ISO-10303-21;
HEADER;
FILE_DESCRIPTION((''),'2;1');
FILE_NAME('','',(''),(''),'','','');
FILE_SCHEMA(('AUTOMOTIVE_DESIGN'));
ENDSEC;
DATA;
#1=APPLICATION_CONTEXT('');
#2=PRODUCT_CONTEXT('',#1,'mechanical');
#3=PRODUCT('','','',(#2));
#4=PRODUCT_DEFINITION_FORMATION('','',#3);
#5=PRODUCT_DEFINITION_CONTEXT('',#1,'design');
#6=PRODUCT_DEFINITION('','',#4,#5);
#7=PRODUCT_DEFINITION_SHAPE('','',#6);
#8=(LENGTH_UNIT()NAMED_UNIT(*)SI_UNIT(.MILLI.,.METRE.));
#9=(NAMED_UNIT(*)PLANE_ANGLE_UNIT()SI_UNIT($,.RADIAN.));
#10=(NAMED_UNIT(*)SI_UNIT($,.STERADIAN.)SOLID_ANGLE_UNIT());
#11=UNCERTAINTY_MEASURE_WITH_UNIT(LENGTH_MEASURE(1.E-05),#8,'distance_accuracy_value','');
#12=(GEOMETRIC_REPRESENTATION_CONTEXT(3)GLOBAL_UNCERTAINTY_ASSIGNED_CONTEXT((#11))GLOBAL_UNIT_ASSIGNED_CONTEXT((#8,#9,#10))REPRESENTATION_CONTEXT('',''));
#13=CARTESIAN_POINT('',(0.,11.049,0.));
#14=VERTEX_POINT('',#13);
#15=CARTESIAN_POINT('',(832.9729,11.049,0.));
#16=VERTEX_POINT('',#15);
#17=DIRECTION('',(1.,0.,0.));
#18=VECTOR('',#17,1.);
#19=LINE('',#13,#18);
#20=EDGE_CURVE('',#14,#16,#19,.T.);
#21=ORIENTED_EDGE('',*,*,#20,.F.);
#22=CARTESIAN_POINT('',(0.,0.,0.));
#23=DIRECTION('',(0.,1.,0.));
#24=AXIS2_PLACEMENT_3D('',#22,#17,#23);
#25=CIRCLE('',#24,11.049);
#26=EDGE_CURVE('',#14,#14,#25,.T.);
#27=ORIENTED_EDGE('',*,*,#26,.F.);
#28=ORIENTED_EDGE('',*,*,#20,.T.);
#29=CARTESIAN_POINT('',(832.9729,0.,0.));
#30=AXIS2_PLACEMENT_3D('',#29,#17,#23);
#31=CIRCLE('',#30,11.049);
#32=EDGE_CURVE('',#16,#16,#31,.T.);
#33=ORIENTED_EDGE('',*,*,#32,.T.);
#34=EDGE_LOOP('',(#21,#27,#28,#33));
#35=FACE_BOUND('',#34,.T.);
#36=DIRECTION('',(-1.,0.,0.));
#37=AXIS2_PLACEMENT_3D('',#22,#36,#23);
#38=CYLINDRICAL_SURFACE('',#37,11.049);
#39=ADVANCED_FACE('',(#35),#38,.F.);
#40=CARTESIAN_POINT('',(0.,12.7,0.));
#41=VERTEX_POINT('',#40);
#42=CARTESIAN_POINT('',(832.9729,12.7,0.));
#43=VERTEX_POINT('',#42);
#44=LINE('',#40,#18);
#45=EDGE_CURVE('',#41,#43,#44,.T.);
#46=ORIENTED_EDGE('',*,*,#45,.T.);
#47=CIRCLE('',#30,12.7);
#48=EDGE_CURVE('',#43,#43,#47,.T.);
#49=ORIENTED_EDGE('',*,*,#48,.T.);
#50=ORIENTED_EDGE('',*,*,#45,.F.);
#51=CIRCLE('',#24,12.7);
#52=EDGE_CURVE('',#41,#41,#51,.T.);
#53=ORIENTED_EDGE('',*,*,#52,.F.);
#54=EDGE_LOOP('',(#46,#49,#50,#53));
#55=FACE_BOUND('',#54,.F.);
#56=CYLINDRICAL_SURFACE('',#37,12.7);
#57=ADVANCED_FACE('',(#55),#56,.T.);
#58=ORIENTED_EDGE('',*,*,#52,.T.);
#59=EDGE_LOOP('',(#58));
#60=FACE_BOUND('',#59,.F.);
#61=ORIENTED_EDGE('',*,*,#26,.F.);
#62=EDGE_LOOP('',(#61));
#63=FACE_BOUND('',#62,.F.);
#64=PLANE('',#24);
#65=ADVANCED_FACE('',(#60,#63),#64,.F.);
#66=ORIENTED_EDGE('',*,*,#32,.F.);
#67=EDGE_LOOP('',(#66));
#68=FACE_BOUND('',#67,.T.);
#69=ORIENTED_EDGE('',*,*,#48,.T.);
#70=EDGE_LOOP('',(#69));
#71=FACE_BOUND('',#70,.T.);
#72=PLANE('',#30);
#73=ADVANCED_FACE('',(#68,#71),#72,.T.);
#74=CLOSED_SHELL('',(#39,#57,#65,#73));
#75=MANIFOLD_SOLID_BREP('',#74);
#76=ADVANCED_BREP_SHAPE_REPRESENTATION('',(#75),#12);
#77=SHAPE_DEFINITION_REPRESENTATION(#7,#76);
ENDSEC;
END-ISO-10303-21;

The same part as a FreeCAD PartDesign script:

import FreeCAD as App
import Part
import Sketcher

V = App.Vector
Q = App.Units.Quantity

doc = App.newDocument("Part")
body = doc.addObject("PartDesign::Body", "Body")

# Sketch on YZ plane
sketch1 = body.newObject("Sketcher::SketchObject", "Sketch")
sketch1.AttachmentSupport = (doc.getObject("YZ_Plane"), [""])
sketch1.MapMode = "FlatFace"
sketch1.addGeometry(Part.Circle(V(0, 0, 0), V(0, 0, 1), 13), False)
sketch1.addGeometry(Part.Circle(V(0, 0, 0), V(0, 0, 1), 11), False)
sketch1.addConstraint(Sketcher.Constraint("Coincident", 0, 3, -1, 1))
sketch1.addConstraint(Sketcher.Constraint("Coincident", 1, 3, -1, 1))
sketch1.addConstraint(Sketcher.Constraint("Diameter", 0, Q("1 in")))
sketch1.addConstraint(Sketcher.Constraint("Diameter", 1, Q("0.87 in")))
pad1 = body.newObject("PartDesign::Pad", "Pad")
pad1.Profile = sketch1
pad1.Length = Q("32.7942087 in")

doc.recompute()
